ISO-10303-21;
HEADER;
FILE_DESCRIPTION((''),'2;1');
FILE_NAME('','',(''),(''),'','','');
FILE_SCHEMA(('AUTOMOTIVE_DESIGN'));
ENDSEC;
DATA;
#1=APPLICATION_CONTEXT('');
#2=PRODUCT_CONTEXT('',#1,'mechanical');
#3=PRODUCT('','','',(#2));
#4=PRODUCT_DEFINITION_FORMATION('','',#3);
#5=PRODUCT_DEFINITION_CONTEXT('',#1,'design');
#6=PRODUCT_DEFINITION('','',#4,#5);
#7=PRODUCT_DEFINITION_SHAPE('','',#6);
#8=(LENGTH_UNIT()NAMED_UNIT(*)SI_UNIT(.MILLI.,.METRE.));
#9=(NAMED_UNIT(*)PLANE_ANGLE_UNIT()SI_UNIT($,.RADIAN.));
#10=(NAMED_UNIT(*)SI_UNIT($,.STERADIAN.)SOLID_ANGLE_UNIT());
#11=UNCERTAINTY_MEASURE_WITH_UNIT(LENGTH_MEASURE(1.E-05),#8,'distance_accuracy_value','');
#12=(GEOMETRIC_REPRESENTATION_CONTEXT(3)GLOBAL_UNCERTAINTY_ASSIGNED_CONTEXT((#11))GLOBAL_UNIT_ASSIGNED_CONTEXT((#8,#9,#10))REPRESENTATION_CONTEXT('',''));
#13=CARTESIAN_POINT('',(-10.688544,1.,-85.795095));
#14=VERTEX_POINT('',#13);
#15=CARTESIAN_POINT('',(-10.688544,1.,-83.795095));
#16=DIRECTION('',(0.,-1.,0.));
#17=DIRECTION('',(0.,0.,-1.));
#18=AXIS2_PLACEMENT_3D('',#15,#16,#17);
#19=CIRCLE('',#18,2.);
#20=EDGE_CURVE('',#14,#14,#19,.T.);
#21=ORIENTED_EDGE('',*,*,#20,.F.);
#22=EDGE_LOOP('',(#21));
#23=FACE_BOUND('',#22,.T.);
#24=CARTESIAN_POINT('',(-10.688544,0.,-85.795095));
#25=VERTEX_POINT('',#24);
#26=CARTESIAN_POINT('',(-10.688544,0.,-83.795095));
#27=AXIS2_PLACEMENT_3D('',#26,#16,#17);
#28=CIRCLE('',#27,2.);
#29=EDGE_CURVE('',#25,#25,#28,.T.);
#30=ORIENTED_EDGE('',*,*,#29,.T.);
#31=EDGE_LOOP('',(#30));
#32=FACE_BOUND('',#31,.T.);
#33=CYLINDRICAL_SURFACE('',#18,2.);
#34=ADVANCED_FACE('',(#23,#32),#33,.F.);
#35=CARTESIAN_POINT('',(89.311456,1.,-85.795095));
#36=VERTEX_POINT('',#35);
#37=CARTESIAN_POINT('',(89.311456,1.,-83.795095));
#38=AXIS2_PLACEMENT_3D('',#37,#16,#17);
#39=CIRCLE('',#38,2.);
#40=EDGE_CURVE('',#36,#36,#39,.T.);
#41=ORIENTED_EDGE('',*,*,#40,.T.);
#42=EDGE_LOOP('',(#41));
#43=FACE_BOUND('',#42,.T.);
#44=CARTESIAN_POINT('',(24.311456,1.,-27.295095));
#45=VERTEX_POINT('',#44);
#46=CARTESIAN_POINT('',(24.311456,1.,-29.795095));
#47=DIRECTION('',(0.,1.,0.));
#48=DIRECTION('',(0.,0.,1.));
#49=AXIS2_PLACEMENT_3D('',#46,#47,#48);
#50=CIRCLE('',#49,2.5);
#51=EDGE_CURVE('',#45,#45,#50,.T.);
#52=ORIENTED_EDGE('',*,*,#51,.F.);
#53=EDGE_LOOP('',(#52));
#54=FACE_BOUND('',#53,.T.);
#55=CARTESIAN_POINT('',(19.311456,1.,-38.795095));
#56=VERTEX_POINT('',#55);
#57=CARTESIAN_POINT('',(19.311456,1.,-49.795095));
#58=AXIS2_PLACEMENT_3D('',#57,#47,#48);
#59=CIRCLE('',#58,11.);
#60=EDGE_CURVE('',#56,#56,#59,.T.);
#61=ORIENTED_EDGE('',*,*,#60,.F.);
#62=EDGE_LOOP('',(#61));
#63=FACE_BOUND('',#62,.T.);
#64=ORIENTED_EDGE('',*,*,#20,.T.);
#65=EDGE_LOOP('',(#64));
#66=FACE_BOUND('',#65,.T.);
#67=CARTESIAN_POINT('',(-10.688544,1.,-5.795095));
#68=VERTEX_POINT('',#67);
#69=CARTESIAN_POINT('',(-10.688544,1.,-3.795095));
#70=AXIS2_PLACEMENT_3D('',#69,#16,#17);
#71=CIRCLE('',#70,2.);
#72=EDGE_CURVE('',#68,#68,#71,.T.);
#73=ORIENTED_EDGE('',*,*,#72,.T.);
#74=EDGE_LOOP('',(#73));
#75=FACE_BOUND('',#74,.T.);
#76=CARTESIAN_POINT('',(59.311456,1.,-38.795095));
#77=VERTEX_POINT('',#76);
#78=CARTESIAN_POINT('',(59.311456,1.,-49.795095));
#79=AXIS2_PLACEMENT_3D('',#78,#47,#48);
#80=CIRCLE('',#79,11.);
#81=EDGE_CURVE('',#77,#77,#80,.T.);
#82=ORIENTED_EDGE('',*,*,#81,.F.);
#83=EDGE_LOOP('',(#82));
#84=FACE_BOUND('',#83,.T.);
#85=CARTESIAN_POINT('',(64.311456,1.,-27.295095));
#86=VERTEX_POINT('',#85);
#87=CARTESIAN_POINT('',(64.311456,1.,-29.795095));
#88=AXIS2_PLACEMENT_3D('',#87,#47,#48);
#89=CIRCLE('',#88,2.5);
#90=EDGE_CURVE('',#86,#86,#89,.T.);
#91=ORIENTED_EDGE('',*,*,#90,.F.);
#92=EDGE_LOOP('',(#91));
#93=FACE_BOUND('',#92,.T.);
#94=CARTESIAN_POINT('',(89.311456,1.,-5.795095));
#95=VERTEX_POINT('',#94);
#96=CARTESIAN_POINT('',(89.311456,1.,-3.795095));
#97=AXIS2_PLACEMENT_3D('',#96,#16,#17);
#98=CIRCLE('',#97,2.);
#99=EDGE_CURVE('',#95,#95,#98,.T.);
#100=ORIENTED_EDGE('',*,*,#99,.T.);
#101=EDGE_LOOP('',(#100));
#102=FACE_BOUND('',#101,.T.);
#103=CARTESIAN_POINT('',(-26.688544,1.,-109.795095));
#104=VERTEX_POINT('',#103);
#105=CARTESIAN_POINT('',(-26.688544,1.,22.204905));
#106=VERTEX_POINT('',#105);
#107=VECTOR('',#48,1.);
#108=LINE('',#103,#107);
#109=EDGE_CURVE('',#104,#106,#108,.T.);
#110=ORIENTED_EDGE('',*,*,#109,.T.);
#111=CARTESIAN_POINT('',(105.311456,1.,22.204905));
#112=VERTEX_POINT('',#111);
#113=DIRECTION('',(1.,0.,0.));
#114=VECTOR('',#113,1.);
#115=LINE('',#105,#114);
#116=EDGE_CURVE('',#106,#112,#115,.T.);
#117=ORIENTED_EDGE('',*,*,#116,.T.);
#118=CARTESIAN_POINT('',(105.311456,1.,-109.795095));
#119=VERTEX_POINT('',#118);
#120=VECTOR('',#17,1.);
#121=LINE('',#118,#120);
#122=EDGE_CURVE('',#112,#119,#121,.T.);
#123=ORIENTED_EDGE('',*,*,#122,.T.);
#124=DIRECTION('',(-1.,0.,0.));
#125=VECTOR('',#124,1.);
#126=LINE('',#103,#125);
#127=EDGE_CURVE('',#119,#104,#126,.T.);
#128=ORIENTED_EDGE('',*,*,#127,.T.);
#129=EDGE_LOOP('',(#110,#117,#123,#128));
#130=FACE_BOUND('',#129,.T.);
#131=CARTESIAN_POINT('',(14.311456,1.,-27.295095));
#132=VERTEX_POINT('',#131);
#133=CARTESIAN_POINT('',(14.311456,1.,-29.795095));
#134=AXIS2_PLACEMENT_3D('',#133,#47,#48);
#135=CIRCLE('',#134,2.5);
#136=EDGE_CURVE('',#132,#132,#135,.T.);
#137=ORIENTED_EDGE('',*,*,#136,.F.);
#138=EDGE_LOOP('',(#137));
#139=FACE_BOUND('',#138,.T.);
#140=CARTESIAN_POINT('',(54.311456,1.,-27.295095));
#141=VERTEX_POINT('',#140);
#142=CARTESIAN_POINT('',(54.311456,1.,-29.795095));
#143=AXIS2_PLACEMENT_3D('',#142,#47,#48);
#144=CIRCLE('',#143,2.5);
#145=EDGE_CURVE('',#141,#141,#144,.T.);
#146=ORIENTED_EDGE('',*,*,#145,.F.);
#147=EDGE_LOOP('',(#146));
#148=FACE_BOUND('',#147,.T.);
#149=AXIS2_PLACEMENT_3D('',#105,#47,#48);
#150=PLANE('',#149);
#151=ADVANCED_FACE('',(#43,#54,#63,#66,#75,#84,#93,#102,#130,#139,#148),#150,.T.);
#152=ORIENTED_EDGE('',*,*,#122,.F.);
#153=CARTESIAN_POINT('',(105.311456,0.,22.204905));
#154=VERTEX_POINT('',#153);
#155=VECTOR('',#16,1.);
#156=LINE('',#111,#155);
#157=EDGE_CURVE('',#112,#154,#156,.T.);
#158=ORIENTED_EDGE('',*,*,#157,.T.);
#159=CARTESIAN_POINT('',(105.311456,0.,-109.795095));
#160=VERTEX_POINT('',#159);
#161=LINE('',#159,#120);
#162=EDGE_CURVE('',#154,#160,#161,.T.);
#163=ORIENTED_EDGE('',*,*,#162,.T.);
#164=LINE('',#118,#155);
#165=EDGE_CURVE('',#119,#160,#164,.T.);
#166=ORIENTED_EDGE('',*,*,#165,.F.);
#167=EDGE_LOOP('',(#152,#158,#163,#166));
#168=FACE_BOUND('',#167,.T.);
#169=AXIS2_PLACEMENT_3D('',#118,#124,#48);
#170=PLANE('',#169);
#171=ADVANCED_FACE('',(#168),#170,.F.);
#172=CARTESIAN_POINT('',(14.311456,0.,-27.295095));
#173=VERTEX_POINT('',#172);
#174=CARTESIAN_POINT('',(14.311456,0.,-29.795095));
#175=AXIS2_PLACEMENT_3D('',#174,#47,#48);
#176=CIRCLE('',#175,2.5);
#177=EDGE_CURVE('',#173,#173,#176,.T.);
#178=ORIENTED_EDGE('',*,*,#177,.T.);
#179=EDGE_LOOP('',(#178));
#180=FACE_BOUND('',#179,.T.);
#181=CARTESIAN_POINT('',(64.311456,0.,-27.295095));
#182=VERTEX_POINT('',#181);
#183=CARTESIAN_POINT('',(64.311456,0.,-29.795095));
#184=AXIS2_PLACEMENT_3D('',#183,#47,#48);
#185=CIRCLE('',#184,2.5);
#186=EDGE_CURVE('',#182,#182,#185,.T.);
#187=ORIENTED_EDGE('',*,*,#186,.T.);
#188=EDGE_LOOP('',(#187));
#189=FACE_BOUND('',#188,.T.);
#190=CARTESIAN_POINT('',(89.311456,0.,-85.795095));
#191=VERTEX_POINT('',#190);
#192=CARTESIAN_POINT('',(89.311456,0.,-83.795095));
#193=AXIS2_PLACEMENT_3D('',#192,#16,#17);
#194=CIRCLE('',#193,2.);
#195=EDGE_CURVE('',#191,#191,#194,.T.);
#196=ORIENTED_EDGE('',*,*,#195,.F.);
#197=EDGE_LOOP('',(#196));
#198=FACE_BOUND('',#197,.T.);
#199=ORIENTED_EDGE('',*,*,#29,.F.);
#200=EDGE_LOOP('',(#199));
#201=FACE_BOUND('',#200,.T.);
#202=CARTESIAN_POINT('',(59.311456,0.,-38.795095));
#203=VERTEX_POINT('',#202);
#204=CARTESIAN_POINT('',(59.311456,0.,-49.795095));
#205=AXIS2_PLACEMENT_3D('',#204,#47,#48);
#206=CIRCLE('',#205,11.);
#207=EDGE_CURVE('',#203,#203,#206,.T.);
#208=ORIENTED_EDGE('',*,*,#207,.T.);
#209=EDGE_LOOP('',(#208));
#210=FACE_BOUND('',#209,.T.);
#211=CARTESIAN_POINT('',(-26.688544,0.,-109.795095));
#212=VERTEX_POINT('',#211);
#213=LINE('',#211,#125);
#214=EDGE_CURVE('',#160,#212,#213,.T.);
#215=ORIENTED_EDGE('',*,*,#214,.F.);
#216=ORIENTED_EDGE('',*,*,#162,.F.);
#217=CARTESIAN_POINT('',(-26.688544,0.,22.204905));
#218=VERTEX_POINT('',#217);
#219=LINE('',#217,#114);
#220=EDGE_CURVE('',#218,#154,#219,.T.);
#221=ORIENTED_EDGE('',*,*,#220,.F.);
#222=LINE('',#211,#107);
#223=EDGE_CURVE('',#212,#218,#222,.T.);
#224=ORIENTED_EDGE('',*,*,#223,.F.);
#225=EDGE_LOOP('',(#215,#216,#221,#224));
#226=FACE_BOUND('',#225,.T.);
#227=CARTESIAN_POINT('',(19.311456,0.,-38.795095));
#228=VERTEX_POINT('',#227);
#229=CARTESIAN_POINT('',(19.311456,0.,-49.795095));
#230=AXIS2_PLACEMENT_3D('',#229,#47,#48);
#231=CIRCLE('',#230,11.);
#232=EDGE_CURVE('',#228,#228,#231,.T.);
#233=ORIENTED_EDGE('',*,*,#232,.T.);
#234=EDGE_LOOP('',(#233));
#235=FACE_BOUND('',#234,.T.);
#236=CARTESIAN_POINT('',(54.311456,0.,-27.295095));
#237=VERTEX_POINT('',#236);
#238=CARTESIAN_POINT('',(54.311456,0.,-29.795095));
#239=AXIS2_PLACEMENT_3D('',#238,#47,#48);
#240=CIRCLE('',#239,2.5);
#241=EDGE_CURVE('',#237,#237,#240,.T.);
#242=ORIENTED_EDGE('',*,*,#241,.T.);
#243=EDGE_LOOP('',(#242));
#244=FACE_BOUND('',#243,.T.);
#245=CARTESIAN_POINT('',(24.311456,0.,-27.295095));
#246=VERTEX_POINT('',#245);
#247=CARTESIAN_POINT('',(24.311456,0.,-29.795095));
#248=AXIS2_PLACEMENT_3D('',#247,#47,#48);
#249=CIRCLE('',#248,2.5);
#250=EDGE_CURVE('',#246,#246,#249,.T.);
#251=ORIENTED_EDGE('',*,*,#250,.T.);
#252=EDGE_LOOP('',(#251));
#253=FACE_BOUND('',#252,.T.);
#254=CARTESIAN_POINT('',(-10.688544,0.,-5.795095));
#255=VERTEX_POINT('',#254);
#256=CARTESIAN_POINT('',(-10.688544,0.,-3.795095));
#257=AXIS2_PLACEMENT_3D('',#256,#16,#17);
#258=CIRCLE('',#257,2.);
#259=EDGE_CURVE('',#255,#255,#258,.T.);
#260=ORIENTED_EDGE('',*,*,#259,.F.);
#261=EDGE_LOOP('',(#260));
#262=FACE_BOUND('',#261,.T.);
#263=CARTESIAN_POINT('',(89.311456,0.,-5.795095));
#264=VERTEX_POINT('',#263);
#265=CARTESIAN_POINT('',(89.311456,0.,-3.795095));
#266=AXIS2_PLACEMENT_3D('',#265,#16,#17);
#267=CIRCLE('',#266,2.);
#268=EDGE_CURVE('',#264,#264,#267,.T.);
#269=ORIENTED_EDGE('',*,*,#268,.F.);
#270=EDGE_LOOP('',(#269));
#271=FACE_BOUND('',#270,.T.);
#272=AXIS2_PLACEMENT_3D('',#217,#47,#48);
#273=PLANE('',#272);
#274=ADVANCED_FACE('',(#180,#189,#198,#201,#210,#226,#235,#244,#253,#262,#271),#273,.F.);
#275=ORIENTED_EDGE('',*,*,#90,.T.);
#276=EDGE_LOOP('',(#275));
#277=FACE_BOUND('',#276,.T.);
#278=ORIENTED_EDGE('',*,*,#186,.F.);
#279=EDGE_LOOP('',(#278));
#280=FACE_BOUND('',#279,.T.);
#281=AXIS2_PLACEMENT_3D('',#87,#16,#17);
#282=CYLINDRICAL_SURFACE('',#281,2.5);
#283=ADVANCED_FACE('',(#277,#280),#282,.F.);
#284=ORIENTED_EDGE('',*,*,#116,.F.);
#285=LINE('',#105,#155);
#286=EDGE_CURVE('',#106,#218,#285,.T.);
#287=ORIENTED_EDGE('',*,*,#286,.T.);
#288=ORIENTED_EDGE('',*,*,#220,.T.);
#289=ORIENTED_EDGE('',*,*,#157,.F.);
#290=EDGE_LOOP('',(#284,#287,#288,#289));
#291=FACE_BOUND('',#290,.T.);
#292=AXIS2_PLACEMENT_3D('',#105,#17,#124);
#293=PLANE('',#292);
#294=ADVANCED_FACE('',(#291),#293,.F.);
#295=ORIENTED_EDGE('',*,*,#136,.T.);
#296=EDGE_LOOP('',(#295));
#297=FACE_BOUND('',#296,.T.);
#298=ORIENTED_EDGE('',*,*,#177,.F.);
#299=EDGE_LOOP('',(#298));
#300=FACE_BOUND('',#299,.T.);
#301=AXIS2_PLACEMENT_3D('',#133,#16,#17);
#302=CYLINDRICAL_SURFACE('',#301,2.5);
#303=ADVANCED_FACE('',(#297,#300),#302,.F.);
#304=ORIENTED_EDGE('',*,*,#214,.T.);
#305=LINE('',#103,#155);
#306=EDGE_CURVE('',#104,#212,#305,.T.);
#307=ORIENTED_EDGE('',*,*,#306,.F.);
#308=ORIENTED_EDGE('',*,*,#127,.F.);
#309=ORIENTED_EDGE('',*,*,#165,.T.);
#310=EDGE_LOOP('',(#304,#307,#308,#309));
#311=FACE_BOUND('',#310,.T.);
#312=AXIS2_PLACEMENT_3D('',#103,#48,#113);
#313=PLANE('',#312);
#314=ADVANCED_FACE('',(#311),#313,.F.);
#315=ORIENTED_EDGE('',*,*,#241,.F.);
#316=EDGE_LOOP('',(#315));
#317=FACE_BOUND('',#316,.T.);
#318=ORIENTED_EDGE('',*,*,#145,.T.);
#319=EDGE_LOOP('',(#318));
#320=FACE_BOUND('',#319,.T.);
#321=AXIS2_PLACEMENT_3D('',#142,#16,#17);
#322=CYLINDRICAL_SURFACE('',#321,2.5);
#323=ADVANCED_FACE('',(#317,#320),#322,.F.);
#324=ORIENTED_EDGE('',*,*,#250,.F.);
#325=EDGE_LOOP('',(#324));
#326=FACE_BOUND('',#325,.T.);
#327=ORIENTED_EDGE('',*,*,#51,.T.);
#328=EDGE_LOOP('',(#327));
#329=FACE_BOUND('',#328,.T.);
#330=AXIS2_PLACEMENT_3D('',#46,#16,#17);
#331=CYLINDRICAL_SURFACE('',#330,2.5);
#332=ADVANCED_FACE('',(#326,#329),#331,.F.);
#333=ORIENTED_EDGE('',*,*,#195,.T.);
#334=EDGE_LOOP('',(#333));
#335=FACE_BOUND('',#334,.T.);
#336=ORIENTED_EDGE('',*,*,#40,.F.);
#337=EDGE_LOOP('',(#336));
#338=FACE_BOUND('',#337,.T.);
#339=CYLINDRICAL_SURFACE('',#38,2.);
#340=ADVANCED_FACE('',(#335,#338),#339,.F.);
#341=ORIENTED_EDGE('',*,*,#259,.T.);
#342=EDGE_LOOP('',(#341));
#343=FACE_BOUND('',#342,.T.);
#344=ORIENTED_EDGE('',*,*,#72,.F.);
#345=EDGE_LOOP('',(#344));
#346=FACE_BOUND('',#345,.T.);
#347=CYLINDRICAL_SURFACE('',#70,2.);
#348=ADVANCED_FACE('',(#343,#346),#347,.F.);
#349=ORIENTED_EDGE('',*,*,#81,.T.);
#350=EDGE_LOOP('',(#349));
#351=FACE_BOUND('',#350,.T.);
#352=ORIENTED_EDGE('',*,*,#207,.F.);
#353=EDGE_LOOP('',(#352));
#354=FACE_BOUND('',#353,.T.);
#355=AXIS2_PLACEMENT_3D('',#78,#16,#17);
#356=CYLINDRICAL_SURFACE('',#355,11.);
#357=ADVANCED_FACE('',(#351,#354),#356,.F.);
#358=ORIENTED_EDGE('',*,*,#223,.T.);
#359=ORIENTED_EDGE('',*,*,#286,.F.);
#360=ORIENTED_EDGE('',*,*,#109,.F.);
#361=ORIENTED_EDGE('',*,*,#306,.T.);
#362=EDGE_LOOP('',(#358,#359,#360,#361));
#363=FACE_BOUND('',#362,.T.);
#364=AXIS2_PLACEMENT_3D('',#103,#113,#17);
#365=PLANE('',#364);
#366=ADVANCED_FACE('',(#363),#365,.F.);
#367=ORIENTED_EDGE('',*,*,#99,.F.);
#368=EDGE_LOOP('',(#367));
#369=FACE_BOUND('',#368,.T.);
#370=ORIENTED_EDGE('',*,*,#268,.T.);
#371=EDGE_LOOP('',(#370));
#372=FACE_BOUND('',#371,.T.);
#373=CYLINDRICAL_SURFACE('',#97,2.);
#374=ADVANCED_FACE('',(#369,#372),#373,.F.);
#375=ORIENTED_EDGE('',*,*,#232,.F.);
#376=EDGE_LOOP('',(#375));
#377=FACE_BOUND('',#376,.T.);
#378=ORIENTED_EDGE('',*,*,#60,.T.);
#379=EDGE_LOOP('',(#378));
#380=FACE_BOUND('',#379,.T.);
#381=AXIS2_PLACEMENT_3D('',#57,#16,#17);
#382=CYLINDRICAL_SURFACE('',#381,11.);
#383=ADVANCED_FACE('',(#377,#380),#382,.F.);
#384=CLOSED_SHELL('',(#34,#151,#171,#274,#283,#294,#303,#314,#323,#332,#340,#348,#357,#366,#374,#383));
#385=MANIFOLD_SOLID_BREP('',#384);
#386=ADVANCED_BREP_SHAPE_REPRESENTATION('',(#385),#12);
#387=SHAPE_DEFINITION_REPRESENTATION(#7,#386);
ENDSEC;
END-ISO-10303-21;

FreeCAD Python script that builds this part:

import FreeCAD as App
import Part
import Sketcher
Q = App.Units.Quantity

doc = App.newDocument("Part")
params = doc.addObject("Spreadsheet::Sheet", "Params")
for row, (alias, value) in enumerate([
    ("sketch1_diameter", "5 mm"),
    ("sketch1_diameter2", "22 mm"),
    ("sketch1_width", "132 mm"),
    ("pad1_length", "1 mm"),
    ("sketch2_diameter", "4 mm"),
], start=1):
    params.set(f"A{row}", alias)
    params.set(f"B{row}", "=" + value)
    params.setAlias(f"B{row}", alias)

body = doc.addObject("PartDesign::Body", "Body")

# Sketch on XZ plane
sketch1 = doc.addObject("Sketcher::SketchObject", "Sketch")
body.addObject(sketch1)
sketch1.AttachmentSupport = (doc.XZ_Plane, [""])
sketch1.MapMode = "FlatFace"
sketch1.addGeometry(Part.LineSegment(App.Vector(-26.688544, -109.795095, 0), App.Vector(-26.688544, 22.204905, 0)), False)
sketch1.addGeometry(Part.LineSegment(App.Vector(-26.688544, 22.204905, 0), App.Vector(105.311456, 22.204905, 0)), False)
sketch1.addGeometry(Part.LineSegment(App.Vector(105.311456, 22.204905, 0), App.Vector(105.311456, -109.795095, 0)), False)
sketch1.addGeometry(Part.LineSegment(App.Vector(105.311456, -109.795095, 0), App.Vector(-26.688544, -109.795095, 0)), False)
sketch1.addGeometry(Part.Circle(App.Vector(14.311456, -29.795095, 0), App.Vector(0, 0, 1), 2.5), False)
sketch1.addGeometry(Part.Circle(App.Vector(24.311456, -29.795095, 0), App.Vector(0, 0, 1), 2.5), False)
sketch1.addGeometry(Part.Circle(App.Vector(54.311456, -29.795095, 0), App.Vector(0, 0, 1), 2.5), False)
sketch1.addGeometry(Part.Circle(App.Vector(64.311456, -29.795095, 0), App.Vector(0, 0, 1), 2.5), False)
sketch1.addGeometry(Part.Circle(App.Vector(19.311456, -49.795095, 0), App.Vector(0, 0, 1), 11), False)
sketch1.addGeometry(Part.Circle(App.Vector(59.311456, -49.795095, 0), App.Vector(0, 0, 1), 11), False)
sketch1.addConstraint(Sketcher.Constraint("Coincident", 0, 2, 1, 1))
sketch1.addConstraint(Sketcher.Constraint("Coincident", 1, 2, 2, 1))
sketch1.addConstraint(Sketcher.Constraint("Coincident", 2, 2, 3, 1))
sketch1.addConstraint(Sketcher.Constraint("Coincident", 3, 2, 0, 1))
sketch1.addConstraint(Sketcher.Constraint("Vertical", 0))
sketch1.addConstraint(Sketcher.Constraint("Horizontal", 1))
sketch1.addConstraint(Sketcher.Constraint("Vertical", 2))
sketch1.addConstraint(Sketcher.Constraint("Horizontal", 3))
sketch1.addConstraint(Sketcher.Constraint("Equal", 4, 5))
sketch1.addConstraint(Sketcher.Constraint("Equal", 5, 6))
sketch1.addConstraint(Sketcher.Constraint("Equal", 6, 7))
sketch1.addConstraint(Sketcher.Constraint("Equal", 8, 9))
sketch1.addConstraint(Sketcher.Constraint("Horizontal", 4, 3, 5, 3))
sketch1.addConstraint(Sketcher.Constraint("Horizontal", 5, 3, 6, 3))
sketch1.addConstraint(Sketcher.Constraint("Horizontal", 6, 3, 7, 3))
sketch1.addConstraint(Sketcher.Constraint("Horizontal", 8, 3, 9, 3))
sketch1.addConstraint(Sketcher.Constraint("Equal", 3, 0))
sketch1.addConstraint(Sketcher.Constraint("Diameter", 4, Q("5 mm")))
sketch1.addConstraint(Sketcher.Constraint("Diameter", 8, Q("22 mm")))
sketch1.addConstraint(Sketcher.Constraint("DistanceX", 1, 1, 1, 2, Q("132 mm")))
sketch1.addConstraint(Sketcher.Constraint("DistanceX", 4, 3, 5, 3, Q("10 mm")))
sketch1.addConstraint(Sketcher.Constraint("DistanceX", 5, 3, 6, 3, Q("30 mm")))
sketch1.addConstraint(Sketcher.Constraint("DistanceX", 6, 3, 7, 3, Q("10 mm")))
sketch1.addConstraint(Sketcher.Constraint("DistanceX", 4, 3, 8, 3, Q("5 mm")))
sketch1.addConstraint(Sketcher.Constraint("DistanceY", 8, 3, 4, 3, Q("20 mm")))
sketch1.addConstraint(Sketcher.Constraint("DistanceX", 9, 3, 7, 3, Q("5 mm")))
sketch1.addConstraint(Sketcher.Constraint("DistanceX", 0, 2, 4, 3, Q("41 mm")))
sketch1.addConstraint(Sketcher.Constraint("DistanceY", 4, 3, 0, 2, Q("52 mm")))
sketch1.addConstraint(Sketcher.Constraint("DistanceX", -1, 1, 4, 3, Q("14.311456 mm")))
sketch1.addConstraint(Sketcher.Constraint("DistanceY", 4, 3, -1, 1, Q("29.795095 mm")))
sketch1.setExpression("Constraints[17]", "Params.sketch1_diameter")
sketch1.setExpression("Constraints[18]", "Params.sketch1_diameter2")
sketch1.setExpression("Constraints[19]", "Params.sketch1_width")
pad1 = doc.addObject("PartDesign::Pad", "Pad")
body.addObject(pad1)
pad1.Profile = sketch1
pad1.setExpression("Length", "Params.pad1_length")
pad1.Reversed = True

# Sketch on XZ plane
sketch2 = doc.addObject("Sketcher::SketchObject", "Sketch001")
body.addObject(sketch2)
sketch2.AttachmentSupport = (doc.XZ_Plane, [""])
sketch2.MapMode = "FlatFace"
sketch2.addGeometry(Part.Circle(App.Vector(-10.688544, -3.795095, 0), App.Vector(0, 0, 1), 2), False)
sketch2.addGeometry(Part.Circle(App.Vector(89.311456, -3.795095, 0), App.Vector(0, 0, 1), 2), False)
sketch2.addGeometry(Part.Circle(App.Vector(89.311456, -83.795095, 0), App.Vector(0, 0, 1), 2), False)
sketch2.addGeometry(Part.Circle(App.Vector(-10.688544, -83.795095, 0), App.Vector(0, 0, 1), 2), False)
sketch2.addConstraint(Sketcher.Constraint("Equal", 0, 1))
sketch2.addConstraint(Sketcher.Constraint("Equal", 1, 2))
sketch2.addConstraint(Sketcher.Constraint("Equal", 2, 3))
sketch2.addConstraint(Sketcher.Constraint("Horizontal", 0, 3, 1, 3))
sketch2.addConstraint(Sketcher.Constraint("Horizontal", 2, 3, 3, 3))
sketch2.addConstraint(Sketcher.Constraint("Vertical", 1, 3, 2, 3))
sketch2.addConstraint(Sketcher.Constraint("Vertical", 0, 3, 3, 3))
sketch2.addConstraint(Sketcher.Constraint("Diameter", 0, Q("4 mm")))
sketch2.addConstraint(Sketcher.Constraint("DistanceX", 0, 3, 1, 3, Q("100 mm")))
sketch2.addConstraint(Sketcher.Constraint("DistanceY", 2, 3, 1, 3, Q("80 mm")))
sketch2.addConstraint(Sketcher.Constraint("DistanceX", 0, 3, -1, 1, Q("10.688544 mm")))
sketch2.addConstraint(Sketcher.Constraint("DistanceY", 0, 3, -1, 1, Q("3.795095 mm")))
sketch2.setExpression("Constraints[7]", "Params.sketch2_diameter")
pocket1 = doc.addObject("PartDesign::Pocket", "Pocket")
body.addObject(pocket1)
pocket1.Profile = sketch2
pocket1.Type = "ThroughAll"

doc.recompute()
